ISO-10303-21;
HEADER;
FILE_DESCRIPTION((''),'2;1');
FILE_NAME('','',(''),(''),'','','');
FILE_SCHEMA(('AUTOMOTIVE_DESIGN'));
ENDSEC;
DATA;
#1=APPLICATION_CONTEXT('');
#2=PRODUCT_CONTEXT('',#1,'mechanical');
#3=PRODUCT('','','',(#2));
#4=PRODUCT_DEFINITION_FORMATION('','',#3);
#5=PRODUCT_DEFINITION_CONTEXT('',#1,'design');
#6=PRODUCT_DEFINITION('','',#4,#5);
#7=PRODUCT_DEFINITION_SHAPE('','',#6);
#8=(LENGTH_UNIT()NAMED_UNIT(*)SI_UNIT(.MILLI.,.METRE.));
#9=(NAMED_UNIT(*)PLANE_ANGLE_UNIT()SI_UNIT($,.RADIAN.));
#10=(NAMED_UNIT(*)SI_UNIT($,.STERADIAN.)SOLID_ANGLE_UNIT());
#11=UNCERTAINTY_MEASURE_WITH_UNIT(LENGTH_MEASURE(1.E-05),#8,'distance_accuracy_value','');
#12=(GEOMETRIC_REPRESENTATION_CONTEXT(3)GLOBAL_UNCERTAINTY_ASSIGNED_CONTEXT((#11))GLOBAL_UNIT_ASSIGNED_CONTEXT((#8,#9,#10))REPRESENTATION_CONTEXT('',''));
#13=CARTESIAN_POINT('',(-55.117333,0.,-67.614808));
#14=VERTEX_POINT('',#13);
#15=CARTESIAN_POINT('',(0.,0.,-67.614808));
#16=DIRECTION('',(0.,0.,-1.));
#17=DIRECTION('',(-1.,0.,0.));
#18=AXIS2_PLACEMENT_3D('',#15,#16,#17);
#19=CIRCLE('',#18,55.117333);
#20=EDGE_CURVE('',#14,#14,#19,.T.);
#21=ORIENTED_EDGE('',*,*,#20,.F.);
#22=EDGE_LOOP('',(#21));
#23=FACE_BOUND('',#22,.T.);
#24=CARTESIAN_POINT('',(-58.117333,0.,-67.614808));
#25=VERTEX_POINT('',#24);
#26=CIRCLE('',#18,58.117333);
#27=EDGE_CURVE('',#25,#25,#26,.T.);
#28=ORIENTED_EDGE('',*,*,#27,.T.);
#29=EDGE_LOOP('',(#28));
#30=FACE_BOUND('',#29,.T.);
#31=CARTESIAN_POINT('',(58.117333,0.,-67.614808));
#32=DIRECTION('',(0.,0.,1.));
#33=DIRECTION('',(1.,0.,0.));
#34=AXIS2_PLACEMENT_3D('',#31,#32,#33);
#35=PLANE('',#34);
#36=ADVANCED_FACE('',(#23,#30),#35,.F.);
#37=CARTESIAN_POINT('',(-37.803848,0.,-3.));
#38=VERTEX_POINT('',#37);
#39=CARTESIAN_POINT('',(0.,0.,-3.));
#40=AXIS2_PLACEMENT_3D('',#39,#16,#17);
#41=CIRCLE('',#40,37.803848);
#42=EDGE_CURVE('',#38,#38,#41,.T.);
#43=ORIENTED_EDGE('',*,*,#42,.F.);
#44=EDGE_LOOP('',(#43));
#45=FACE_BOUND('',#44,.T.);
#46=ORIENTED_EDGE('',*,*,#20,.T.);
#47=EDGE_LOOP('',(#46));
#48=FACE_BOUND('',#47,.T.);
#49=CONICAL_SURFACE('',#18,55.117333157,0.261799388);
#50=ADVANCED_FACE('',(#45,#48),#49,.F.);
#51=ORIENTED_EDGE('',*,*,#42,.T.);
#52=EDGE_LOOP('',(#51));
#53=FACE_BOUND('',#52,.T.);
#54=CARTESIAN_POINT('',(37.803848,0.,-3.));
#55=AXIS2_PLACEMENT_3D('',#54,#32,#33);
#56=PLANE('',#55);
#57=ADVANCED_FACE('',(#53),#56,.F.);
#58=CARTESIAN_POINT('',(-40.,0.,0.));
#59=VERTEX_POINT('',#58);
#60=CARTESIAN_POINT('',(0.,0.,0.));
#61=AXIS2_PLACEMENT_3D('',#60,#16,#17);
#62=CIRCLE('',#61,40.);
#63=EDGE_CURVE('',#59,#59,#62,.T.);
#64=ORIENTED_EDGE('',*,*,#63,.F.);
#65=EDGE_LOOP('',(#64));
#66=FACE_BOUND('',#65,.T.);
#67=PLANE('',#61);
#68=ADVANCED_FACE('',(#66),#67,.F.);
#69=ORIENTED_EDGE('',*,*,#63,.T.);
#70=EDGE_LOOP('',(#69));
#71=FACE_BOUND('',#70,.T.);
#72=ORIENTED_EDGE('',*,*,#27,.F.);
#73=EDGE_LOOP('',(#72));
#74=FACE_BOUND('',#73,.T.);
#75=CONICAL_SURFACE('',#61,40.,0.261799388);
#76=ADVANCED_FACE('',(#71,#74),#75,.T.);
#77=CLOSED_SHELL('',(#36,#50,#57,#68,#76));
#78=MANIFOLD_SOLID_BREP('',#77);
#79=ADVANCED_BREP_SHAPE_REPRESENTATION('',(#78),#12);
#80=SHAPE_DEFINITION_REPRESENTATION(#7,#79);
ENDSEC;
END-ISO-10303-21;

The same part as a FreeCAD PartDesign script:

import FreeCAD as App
import Part
import Sketcher
Q = App.Units.Quantity


def add_polygon(sketch, points):
    """Adds a closed chain of lines whose ends are joined by coincident constraints."""
    first, n = sketch.GeometryCount, len(points)
    for a, b in zip(points, points[1:] + points[:1]):
        sketch.addGeometry(Part.LineSegment(App.Vector(*a, 0), App.Vector(*b, 0)), False)
    for i in range(n):
        sketch.addConstraint(Sketcher.Constraint("Coincident", first + i, 2, first + (i + 1) % n, 1))

doc = App.newDocument("Part")
params = doc.addObject("Spreadsheet::Sheet", "Params")
for row, (alias, value) in enumerate([
    ("sketch1_width", "40 mm"),
    ("sketch1_width2", "3 mm"),
    ("sketch1_length", "70 mm"),
    ("revolution_angle", "360 deg"),
], start=1):
    params.set(f"A{row}", alias)
    params.set(f"B{row}", "=" + value)
    params.setAlias(f"B{row}", alias)

body = doc.addObject("PartDesign::Body", "Body")

# Sketch on XZ plane
sketch1 = doc.addObject("Sketcher::SketchObject", "Sketch")
body.addObject(sketch1)
sketch1.AttachmentSupport = (doc.XZ_Plane, [""])
sketch1.MapMode = "FlatFace"
add_polygon(sketch1, [(0, 0), (40, 0), (58.117333, -67.614808), (55.117333, -67.614808), (37.803848, -3), (0, -3)])  # lines 0-5
sketch1.addConstraint([
    Sketcher.Constraint("Horizontal", 0),
    Sketcher.Constraint("Horizontal", 2),
    Sketcher.Constraint("Horizontal", 4),
    Sketcher.Constraint("Vertical", 5),
    Sketcher.Constraint("Coincident", 5, 2, -1, 1),
    Sketcher.Constraint("Parallel", 1, 3),
    Sketcher.Constraint("Equal", 2, 5),
    Sketcher.Constraint("DistanceX", 0, 1, 0, 2, Q("40 mm")),
    Sketcher.Constraint("DistanceX", 2, 2, 2, 1, Q("3 mm")),
    Sketcher.Constraint("Angle", 1, Q("-75 deg")),
    Sketcher.Constraint("Distance", 1, Q("70 mm")),
])
sketch1.setExpression("Constraints[13]", "Params.sketch1_width")
sketch1.setExpression("Constraints[14]", "Params.sketch1_width2")
sketch1.setExpression("Constraints[16]", "Params.sketch1_length")
revolution = doc.addObject("PartDesign::Revolution", "Revolution")
body.addObject(revolution)
revolution.Profile = sketch1
revolution.ReferenceAxis = (sketch1, ["V_Axis"])
revolution.setExpression("Angle", "Params.revolution_angle")

doc.recompute()
